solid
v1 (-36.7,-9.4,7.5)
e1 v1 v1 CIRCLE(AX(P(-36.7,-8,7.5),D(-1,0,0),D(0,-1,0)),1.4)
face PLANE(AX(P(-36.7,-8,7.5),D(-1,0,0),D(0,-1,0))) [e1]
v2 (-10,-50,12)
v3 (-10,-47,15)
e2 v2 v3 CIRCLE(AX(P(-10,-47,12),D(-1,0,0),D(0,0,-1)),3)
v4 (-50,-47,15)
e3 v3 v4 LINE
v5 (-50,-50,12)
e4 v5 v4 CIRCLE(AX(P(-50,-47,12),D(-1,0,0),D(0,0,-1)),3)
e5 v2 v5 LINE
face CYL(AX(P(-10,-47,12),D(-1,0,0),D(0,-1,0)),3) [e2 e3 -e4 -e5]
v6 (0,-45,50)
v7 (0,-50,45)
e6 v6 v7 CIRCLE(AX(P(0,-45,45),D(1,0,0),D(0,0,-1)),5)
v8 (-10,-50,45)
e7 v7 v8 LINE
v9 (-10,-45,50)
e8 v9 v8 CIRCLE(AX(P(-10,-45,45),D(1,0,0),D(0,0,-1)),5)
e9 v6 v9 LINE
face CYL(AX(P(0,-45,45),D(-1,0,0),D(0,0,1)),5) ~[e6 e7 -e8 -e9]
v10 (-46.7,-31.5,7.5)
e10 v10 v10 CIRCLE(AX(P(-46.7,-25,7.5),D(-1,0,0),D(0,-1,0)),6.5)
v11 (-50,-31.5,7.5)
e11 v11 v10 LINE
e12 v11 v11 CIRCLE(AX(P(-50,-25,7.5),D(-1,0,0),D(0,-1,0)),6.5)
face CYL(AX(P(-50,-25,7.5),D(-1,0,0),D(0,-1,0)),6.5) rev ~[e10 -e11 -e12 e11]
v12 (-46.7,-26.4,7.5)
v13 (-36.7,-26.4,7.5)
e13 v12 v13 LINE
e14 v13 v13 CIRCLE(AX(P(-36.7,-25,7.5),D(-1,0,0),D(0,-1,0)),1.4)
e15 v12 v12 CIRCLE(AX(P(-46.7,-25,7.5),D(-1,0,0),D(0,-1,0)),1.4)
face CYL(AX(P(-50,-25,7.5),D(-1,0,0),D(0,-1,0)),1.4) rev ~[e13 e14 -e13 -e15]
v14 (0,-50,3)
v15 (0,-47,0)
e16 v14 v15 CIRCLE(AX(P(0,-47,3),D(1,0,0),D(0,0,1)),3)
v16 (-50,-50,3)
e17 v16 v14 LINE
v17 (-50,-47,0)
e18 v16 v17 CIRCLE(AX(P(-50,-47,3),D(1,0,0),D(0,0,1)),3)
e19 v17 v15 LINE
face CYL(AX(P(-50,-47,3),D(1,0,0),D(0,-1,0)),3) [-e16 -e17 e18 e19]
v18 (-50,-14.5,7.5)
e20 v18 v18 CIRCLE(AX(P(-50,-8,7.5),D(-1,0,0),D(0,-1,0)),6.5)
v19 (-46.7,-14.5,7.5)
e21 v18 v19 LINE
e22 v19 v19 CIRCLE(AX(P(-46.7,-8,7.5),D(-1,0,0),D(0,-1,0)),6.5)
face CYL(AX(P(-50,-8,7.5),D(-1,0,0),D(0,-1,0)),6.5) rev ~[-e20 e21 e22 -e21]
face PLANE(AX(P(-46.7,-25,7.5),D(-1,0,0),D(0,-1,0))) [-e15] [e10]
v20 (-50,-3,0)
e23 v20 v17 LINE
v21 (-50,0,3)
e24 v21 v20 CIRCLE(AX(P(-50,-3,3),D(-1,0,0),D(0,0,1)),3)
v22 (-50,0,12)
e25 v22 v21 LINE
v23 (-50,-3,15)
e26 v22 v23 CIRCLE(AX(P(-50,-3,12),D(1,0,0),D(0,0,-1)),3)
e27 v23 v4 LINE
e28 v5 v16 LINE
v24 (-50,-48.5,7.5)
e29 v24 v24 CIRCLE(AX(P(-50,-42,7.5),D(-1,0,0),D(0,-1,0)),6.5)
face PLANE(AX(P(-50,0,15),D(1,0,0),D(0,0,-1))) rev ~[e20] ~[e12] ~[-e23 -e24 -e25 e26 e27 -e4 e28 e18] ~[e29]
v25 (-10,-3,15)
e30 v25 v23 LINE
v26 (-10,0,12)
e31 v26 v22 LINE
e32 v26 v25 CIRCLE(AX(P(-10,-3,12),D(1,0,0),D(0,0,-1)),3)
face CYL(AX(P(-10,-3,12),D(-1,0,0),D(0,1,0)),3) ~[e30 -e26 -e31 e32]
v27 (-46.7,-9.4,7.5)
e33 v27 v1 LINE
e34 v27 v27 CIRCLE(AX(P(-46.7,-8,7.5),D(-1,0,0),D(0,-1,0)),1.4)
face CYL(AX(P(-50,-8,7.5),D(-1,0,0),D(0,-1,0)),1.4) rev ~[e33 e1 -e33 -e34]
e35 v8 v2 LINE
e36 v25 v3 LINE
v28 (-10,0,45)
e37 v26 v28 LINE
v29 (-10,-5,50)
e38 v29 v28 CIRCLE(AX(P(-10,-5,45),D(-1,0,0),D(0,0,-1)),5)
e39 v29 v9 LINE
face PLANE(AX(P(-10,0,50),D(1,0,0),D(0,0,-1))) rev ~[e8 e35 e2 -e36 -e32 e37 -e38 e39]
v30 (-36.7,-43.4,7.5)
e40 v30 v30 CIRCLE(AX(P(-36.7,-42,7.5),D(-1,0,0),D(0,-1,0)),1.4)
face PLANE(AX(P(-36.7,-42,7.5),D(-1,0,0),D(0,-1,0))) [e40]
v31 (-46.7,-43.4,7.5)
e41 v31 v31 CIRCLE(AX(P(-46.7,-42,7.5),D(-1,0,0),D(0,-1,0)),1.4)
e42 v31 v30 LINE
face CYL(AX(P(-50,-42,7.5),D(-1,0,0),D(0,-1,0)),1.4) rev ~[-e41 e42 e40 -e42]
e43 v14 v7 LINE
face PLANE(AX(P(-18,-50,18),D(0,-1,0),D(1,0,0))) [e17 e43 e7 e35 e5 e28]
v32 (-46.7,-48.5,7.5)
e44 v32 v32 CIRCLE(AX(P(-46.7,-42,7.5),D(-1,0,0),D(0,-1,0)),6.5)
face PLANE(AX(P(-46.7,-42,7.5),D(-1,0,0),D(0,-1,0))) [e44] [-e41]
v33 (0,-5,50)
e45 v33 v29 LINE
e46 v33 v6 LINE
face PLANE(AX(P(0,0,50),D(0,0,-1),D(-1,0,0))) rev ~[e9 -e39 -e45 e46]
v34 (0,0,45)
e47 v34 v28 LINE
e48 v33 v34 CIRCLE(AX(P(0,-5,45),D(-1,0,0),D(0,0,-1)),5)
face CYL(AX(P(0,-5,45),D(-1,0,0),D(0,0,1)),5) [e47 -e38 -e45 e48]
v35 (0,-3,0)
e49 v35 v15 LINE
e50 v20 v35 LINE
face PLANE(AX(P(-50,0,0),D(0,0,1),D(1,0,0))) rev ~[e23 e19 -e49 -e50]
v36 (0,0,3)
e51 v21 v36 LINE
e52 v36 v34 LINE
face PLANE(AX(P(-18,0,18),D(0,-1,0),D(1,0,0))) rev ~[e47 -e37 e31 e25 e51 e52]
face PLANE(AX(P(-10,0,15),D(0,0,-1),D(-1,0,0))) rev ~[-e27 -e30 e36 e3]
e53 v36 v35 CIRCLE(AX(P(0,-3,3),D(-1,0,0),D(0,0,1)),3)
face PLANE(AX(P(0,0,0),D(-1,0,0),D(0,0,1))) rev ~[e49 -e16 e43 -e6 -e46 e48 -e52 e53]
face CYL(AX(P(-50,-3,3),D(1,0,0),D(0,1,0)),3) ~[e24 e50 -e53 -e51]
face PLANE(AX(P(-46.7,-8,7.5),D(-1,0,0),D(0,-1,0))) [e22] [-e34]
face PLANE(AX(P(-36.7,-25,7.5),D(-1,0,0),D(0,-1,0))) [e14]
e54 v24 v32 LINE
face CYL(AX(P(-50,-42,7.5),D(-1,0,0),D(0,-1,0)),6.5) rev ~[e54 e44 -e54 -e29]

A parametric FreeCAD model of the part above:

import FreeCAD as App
import Part
import Sketcher


def edges_at(feature, points):
    """Names of the edges that pass closest to the given points."""
    edges = feature.Shape.Edges
    near = lambda p: min(range(len(edges)), key=lambda i: edges[i].distToShape(Part.Vertex(*p))[0])
    return sorted({f"Edge{near(p) + 1}" for p in points})


def add_polygon(sketch, points):
    """Adds a closed chain of lines whose ends are joined by coincident constraints."""
    first, n = sketch.GeometryCount, len(points)
    for a, b in zip(points, points[1:] + points[:1]):
        sketch.addGeometry(Part.LineSegment(App.Vector(*a, 0), App.Vector(*b, 0)), False)
    for i in range(n):
        sketch.addConstraint(Sketcher.Constraint("Coincident", first + i, 2, first + (i + 1) % n, 1))

doc = App.newDocument("Part")
body = doc.addObject("PartDesign::Body", "Body")

# Sketch on XZ plane
sketch1 = body.newObject("Sketcher::SketchObject", "Sketch")
sketch1.AttachmentSupport = (doc.getObject("XZ_Plane"), [""])
sketch1.MapMode = "FlatFace"
add_polygon(sketch1, [(-50, 15), (-50, 0), (0, 0), (0, 50), (-10, 50), (-10, 15)])  # lines 0-5
sketch1.addConstraint(Sketcher.Constraint("Vertical", 0))
sketch1.addConstraint(Sketcher.Constraint("Horizontal", 1))
sketch1.addConstraint(Sketcher.Constraint("Vertical", 2))
sketch1.addConstraint(Sketcher.Constraint("Horizontal", 3))
sketch1.addConstraint(Sketcher.Constraint("Vertical", 4))
sketch1.addConstraint(Sketcher.Constraint("Horizontal", 5))
sketch1.addConstraint(Sketcher.Constraint("Coincident", 1, 2, -1, 1))
sketch1.addConstraint(Sketcher.Constraint("Equal", 1, 2))
sketch1.addConstraint(Sketcher.Constraint("DistanceX", 1, 1, 1, 2, 50.0))
sketch1.addConstraint(Sketcher.Constraint("DistanceX", 3, 2, 3, 1, 10.0))
sketch1.addConstraint(Sketcher.Constraint("DistanceY", 0, 2, 0, 1, 15.0))
pad1 = body.newObject("PartDesign::Pad", "Pad")
pad1.Profile = sketch1
pad1.Length = 50
doc.recompute()

fillet = body.newObject("PartDesign::Fillet", "Fillet")
fillet.Base = (pad1, edges_at(pad1, [(-5, -50, 50), (-5, 0, 50)]))
fillet.Radius = 5

# Sketch on YZ plane
sketch2 = body.newObject("Sketcher::SketchObject", "Sketch001")
sketch2.AttachmentSupport = (doc.getObject("YZ_Plane"), [""])
sketch2.MapMode = "FlatFace"
sketch2.AttachmentOffset = App.Placement(App.Vector(0, 0, -50), App.Rotation())
sketch2.addGeometry(Part.Circle(App.Vector(-8, 8, 0), App.Vector(0, 0, 1), 6), False)
sketch2.addGeometry(Part.Circle(App.Vector(-25, 8, 0), App.Vector(0, 0, 1), 6), False)
sketch2.addGeometry(Part.Circle(App.Vector(-42, 8, 0), App.Vector(0, 0, 1), 6), False)
sketch2.addConstraint(Sketcher.Constraint("Equal", 0, 1))
sketch2.addConstraint(Sketcher.Constraint("Equal", 1, 2))
sketch2.addConstraint(Sketcher.Constraint("Horizontal", 0, 3, 1, 3))
sketch2.addConstraint(Sketcher.Constraint("Horizontal", 1, 3, 2, 3))
sketch2.addConstraint(Sketcher.Constraint("Diameter", 0, 13.0))
sketch2.addConstraint(Sketcher.Constraint("DistanceX", 0, 3, -1, 1, 8.0))
sketch2.addConstraint(Sketcher.Constraint("DistanceX", 1, 3, -1, 1, 25.0))
sketch2.addConstraint(Sketcher.Constraint("DistanceX", 2, 3, -1, 1, 42.0))
sketch2.addConstraint(Sketcher.Constraint("DistanceY", -1, 1, 0, 3, 7.5))
pocket1 = body.newObject("PartDesign::Pocket", "Pocket")
pocket1.Profile = sketch2
pocket1.Length = 3.3
pocket1.Reversed = True

# Sketch on YZ plane
sketch3 = body.newObject("Sketcher::SketchObject", "Sketch002")
sketch3.AttachmentSupport = (doc.getObject("YZ_Plane"), [""])
sketch3.MapMode = "FlatFace"
sketch3.AttachmentOffset = App.Placement(App.Vector(0, 0, -50), App.Rotation())
sketch3.addGeometry(Part.Circle(App.Vector(-8, 7.5, 0), App.Vector(0, 0, 1), 1.4), False)
sketch3.addGeometry(Part.Circle(App.Vector(-25, 7.5, 0), App.Vector(0, 0, 1), 1.4), False)
sketch3.addGeometry(Part.Circle(App.Vector(-42, 7.5, 0), App.Vector(0, 0, 1), 1.4), False)
sketch3.addConstraint(Sketcher.Constraint("Equal", 0, 1))
sketch3.addConstraint(Sketcher.Constraint("Equal", 1, 2))
sketch3.addConstraint(Sketcher.Constraint("Horizontal", 0, 3, 1, 3))
sketch3.addConstraint(Sketcher.Constraint("Horizontal", 1, 3, 2, 3))
sketch3.addConstraint(Sketcher.Constraint("Diameter", 0, 2.8))
sketch3.addConstraint(Sketcher.Constraint("DistanceX", 0, 3, -1, 1, 8.0))
sketch3.addConstraint(Sketcher.Constraint("DistanceX", 1, 3, -1, 1, 25.0))
sketch3.addConstraint(Sketcher.Constraint("DistanceX", 2, 3, -1, 1, 42.0))
sketch3.addConstraint(Sketcher.Constraint("DistanceY", -1, 1, 0, 3, 7.5))
pocket2 = body.newObject("PartDesign::Pocket", "Pocket001")
pocket2.Profile = sketch3
pocket2.Length = 13.3
pocket2.Reversed = True
doc.recompute()

fillet2 = body.newObject("PartDesign::Fillet", "Fillet001")
fillet2.Base = (pocket2, edges_at(pocket2, [
    (-25, -50, 0),
    (-25, 0, 0),
    (-30, 0, 15),
    (-30, -50, 15),
]))
fillet2.Radius = 3

doc.recompute()
